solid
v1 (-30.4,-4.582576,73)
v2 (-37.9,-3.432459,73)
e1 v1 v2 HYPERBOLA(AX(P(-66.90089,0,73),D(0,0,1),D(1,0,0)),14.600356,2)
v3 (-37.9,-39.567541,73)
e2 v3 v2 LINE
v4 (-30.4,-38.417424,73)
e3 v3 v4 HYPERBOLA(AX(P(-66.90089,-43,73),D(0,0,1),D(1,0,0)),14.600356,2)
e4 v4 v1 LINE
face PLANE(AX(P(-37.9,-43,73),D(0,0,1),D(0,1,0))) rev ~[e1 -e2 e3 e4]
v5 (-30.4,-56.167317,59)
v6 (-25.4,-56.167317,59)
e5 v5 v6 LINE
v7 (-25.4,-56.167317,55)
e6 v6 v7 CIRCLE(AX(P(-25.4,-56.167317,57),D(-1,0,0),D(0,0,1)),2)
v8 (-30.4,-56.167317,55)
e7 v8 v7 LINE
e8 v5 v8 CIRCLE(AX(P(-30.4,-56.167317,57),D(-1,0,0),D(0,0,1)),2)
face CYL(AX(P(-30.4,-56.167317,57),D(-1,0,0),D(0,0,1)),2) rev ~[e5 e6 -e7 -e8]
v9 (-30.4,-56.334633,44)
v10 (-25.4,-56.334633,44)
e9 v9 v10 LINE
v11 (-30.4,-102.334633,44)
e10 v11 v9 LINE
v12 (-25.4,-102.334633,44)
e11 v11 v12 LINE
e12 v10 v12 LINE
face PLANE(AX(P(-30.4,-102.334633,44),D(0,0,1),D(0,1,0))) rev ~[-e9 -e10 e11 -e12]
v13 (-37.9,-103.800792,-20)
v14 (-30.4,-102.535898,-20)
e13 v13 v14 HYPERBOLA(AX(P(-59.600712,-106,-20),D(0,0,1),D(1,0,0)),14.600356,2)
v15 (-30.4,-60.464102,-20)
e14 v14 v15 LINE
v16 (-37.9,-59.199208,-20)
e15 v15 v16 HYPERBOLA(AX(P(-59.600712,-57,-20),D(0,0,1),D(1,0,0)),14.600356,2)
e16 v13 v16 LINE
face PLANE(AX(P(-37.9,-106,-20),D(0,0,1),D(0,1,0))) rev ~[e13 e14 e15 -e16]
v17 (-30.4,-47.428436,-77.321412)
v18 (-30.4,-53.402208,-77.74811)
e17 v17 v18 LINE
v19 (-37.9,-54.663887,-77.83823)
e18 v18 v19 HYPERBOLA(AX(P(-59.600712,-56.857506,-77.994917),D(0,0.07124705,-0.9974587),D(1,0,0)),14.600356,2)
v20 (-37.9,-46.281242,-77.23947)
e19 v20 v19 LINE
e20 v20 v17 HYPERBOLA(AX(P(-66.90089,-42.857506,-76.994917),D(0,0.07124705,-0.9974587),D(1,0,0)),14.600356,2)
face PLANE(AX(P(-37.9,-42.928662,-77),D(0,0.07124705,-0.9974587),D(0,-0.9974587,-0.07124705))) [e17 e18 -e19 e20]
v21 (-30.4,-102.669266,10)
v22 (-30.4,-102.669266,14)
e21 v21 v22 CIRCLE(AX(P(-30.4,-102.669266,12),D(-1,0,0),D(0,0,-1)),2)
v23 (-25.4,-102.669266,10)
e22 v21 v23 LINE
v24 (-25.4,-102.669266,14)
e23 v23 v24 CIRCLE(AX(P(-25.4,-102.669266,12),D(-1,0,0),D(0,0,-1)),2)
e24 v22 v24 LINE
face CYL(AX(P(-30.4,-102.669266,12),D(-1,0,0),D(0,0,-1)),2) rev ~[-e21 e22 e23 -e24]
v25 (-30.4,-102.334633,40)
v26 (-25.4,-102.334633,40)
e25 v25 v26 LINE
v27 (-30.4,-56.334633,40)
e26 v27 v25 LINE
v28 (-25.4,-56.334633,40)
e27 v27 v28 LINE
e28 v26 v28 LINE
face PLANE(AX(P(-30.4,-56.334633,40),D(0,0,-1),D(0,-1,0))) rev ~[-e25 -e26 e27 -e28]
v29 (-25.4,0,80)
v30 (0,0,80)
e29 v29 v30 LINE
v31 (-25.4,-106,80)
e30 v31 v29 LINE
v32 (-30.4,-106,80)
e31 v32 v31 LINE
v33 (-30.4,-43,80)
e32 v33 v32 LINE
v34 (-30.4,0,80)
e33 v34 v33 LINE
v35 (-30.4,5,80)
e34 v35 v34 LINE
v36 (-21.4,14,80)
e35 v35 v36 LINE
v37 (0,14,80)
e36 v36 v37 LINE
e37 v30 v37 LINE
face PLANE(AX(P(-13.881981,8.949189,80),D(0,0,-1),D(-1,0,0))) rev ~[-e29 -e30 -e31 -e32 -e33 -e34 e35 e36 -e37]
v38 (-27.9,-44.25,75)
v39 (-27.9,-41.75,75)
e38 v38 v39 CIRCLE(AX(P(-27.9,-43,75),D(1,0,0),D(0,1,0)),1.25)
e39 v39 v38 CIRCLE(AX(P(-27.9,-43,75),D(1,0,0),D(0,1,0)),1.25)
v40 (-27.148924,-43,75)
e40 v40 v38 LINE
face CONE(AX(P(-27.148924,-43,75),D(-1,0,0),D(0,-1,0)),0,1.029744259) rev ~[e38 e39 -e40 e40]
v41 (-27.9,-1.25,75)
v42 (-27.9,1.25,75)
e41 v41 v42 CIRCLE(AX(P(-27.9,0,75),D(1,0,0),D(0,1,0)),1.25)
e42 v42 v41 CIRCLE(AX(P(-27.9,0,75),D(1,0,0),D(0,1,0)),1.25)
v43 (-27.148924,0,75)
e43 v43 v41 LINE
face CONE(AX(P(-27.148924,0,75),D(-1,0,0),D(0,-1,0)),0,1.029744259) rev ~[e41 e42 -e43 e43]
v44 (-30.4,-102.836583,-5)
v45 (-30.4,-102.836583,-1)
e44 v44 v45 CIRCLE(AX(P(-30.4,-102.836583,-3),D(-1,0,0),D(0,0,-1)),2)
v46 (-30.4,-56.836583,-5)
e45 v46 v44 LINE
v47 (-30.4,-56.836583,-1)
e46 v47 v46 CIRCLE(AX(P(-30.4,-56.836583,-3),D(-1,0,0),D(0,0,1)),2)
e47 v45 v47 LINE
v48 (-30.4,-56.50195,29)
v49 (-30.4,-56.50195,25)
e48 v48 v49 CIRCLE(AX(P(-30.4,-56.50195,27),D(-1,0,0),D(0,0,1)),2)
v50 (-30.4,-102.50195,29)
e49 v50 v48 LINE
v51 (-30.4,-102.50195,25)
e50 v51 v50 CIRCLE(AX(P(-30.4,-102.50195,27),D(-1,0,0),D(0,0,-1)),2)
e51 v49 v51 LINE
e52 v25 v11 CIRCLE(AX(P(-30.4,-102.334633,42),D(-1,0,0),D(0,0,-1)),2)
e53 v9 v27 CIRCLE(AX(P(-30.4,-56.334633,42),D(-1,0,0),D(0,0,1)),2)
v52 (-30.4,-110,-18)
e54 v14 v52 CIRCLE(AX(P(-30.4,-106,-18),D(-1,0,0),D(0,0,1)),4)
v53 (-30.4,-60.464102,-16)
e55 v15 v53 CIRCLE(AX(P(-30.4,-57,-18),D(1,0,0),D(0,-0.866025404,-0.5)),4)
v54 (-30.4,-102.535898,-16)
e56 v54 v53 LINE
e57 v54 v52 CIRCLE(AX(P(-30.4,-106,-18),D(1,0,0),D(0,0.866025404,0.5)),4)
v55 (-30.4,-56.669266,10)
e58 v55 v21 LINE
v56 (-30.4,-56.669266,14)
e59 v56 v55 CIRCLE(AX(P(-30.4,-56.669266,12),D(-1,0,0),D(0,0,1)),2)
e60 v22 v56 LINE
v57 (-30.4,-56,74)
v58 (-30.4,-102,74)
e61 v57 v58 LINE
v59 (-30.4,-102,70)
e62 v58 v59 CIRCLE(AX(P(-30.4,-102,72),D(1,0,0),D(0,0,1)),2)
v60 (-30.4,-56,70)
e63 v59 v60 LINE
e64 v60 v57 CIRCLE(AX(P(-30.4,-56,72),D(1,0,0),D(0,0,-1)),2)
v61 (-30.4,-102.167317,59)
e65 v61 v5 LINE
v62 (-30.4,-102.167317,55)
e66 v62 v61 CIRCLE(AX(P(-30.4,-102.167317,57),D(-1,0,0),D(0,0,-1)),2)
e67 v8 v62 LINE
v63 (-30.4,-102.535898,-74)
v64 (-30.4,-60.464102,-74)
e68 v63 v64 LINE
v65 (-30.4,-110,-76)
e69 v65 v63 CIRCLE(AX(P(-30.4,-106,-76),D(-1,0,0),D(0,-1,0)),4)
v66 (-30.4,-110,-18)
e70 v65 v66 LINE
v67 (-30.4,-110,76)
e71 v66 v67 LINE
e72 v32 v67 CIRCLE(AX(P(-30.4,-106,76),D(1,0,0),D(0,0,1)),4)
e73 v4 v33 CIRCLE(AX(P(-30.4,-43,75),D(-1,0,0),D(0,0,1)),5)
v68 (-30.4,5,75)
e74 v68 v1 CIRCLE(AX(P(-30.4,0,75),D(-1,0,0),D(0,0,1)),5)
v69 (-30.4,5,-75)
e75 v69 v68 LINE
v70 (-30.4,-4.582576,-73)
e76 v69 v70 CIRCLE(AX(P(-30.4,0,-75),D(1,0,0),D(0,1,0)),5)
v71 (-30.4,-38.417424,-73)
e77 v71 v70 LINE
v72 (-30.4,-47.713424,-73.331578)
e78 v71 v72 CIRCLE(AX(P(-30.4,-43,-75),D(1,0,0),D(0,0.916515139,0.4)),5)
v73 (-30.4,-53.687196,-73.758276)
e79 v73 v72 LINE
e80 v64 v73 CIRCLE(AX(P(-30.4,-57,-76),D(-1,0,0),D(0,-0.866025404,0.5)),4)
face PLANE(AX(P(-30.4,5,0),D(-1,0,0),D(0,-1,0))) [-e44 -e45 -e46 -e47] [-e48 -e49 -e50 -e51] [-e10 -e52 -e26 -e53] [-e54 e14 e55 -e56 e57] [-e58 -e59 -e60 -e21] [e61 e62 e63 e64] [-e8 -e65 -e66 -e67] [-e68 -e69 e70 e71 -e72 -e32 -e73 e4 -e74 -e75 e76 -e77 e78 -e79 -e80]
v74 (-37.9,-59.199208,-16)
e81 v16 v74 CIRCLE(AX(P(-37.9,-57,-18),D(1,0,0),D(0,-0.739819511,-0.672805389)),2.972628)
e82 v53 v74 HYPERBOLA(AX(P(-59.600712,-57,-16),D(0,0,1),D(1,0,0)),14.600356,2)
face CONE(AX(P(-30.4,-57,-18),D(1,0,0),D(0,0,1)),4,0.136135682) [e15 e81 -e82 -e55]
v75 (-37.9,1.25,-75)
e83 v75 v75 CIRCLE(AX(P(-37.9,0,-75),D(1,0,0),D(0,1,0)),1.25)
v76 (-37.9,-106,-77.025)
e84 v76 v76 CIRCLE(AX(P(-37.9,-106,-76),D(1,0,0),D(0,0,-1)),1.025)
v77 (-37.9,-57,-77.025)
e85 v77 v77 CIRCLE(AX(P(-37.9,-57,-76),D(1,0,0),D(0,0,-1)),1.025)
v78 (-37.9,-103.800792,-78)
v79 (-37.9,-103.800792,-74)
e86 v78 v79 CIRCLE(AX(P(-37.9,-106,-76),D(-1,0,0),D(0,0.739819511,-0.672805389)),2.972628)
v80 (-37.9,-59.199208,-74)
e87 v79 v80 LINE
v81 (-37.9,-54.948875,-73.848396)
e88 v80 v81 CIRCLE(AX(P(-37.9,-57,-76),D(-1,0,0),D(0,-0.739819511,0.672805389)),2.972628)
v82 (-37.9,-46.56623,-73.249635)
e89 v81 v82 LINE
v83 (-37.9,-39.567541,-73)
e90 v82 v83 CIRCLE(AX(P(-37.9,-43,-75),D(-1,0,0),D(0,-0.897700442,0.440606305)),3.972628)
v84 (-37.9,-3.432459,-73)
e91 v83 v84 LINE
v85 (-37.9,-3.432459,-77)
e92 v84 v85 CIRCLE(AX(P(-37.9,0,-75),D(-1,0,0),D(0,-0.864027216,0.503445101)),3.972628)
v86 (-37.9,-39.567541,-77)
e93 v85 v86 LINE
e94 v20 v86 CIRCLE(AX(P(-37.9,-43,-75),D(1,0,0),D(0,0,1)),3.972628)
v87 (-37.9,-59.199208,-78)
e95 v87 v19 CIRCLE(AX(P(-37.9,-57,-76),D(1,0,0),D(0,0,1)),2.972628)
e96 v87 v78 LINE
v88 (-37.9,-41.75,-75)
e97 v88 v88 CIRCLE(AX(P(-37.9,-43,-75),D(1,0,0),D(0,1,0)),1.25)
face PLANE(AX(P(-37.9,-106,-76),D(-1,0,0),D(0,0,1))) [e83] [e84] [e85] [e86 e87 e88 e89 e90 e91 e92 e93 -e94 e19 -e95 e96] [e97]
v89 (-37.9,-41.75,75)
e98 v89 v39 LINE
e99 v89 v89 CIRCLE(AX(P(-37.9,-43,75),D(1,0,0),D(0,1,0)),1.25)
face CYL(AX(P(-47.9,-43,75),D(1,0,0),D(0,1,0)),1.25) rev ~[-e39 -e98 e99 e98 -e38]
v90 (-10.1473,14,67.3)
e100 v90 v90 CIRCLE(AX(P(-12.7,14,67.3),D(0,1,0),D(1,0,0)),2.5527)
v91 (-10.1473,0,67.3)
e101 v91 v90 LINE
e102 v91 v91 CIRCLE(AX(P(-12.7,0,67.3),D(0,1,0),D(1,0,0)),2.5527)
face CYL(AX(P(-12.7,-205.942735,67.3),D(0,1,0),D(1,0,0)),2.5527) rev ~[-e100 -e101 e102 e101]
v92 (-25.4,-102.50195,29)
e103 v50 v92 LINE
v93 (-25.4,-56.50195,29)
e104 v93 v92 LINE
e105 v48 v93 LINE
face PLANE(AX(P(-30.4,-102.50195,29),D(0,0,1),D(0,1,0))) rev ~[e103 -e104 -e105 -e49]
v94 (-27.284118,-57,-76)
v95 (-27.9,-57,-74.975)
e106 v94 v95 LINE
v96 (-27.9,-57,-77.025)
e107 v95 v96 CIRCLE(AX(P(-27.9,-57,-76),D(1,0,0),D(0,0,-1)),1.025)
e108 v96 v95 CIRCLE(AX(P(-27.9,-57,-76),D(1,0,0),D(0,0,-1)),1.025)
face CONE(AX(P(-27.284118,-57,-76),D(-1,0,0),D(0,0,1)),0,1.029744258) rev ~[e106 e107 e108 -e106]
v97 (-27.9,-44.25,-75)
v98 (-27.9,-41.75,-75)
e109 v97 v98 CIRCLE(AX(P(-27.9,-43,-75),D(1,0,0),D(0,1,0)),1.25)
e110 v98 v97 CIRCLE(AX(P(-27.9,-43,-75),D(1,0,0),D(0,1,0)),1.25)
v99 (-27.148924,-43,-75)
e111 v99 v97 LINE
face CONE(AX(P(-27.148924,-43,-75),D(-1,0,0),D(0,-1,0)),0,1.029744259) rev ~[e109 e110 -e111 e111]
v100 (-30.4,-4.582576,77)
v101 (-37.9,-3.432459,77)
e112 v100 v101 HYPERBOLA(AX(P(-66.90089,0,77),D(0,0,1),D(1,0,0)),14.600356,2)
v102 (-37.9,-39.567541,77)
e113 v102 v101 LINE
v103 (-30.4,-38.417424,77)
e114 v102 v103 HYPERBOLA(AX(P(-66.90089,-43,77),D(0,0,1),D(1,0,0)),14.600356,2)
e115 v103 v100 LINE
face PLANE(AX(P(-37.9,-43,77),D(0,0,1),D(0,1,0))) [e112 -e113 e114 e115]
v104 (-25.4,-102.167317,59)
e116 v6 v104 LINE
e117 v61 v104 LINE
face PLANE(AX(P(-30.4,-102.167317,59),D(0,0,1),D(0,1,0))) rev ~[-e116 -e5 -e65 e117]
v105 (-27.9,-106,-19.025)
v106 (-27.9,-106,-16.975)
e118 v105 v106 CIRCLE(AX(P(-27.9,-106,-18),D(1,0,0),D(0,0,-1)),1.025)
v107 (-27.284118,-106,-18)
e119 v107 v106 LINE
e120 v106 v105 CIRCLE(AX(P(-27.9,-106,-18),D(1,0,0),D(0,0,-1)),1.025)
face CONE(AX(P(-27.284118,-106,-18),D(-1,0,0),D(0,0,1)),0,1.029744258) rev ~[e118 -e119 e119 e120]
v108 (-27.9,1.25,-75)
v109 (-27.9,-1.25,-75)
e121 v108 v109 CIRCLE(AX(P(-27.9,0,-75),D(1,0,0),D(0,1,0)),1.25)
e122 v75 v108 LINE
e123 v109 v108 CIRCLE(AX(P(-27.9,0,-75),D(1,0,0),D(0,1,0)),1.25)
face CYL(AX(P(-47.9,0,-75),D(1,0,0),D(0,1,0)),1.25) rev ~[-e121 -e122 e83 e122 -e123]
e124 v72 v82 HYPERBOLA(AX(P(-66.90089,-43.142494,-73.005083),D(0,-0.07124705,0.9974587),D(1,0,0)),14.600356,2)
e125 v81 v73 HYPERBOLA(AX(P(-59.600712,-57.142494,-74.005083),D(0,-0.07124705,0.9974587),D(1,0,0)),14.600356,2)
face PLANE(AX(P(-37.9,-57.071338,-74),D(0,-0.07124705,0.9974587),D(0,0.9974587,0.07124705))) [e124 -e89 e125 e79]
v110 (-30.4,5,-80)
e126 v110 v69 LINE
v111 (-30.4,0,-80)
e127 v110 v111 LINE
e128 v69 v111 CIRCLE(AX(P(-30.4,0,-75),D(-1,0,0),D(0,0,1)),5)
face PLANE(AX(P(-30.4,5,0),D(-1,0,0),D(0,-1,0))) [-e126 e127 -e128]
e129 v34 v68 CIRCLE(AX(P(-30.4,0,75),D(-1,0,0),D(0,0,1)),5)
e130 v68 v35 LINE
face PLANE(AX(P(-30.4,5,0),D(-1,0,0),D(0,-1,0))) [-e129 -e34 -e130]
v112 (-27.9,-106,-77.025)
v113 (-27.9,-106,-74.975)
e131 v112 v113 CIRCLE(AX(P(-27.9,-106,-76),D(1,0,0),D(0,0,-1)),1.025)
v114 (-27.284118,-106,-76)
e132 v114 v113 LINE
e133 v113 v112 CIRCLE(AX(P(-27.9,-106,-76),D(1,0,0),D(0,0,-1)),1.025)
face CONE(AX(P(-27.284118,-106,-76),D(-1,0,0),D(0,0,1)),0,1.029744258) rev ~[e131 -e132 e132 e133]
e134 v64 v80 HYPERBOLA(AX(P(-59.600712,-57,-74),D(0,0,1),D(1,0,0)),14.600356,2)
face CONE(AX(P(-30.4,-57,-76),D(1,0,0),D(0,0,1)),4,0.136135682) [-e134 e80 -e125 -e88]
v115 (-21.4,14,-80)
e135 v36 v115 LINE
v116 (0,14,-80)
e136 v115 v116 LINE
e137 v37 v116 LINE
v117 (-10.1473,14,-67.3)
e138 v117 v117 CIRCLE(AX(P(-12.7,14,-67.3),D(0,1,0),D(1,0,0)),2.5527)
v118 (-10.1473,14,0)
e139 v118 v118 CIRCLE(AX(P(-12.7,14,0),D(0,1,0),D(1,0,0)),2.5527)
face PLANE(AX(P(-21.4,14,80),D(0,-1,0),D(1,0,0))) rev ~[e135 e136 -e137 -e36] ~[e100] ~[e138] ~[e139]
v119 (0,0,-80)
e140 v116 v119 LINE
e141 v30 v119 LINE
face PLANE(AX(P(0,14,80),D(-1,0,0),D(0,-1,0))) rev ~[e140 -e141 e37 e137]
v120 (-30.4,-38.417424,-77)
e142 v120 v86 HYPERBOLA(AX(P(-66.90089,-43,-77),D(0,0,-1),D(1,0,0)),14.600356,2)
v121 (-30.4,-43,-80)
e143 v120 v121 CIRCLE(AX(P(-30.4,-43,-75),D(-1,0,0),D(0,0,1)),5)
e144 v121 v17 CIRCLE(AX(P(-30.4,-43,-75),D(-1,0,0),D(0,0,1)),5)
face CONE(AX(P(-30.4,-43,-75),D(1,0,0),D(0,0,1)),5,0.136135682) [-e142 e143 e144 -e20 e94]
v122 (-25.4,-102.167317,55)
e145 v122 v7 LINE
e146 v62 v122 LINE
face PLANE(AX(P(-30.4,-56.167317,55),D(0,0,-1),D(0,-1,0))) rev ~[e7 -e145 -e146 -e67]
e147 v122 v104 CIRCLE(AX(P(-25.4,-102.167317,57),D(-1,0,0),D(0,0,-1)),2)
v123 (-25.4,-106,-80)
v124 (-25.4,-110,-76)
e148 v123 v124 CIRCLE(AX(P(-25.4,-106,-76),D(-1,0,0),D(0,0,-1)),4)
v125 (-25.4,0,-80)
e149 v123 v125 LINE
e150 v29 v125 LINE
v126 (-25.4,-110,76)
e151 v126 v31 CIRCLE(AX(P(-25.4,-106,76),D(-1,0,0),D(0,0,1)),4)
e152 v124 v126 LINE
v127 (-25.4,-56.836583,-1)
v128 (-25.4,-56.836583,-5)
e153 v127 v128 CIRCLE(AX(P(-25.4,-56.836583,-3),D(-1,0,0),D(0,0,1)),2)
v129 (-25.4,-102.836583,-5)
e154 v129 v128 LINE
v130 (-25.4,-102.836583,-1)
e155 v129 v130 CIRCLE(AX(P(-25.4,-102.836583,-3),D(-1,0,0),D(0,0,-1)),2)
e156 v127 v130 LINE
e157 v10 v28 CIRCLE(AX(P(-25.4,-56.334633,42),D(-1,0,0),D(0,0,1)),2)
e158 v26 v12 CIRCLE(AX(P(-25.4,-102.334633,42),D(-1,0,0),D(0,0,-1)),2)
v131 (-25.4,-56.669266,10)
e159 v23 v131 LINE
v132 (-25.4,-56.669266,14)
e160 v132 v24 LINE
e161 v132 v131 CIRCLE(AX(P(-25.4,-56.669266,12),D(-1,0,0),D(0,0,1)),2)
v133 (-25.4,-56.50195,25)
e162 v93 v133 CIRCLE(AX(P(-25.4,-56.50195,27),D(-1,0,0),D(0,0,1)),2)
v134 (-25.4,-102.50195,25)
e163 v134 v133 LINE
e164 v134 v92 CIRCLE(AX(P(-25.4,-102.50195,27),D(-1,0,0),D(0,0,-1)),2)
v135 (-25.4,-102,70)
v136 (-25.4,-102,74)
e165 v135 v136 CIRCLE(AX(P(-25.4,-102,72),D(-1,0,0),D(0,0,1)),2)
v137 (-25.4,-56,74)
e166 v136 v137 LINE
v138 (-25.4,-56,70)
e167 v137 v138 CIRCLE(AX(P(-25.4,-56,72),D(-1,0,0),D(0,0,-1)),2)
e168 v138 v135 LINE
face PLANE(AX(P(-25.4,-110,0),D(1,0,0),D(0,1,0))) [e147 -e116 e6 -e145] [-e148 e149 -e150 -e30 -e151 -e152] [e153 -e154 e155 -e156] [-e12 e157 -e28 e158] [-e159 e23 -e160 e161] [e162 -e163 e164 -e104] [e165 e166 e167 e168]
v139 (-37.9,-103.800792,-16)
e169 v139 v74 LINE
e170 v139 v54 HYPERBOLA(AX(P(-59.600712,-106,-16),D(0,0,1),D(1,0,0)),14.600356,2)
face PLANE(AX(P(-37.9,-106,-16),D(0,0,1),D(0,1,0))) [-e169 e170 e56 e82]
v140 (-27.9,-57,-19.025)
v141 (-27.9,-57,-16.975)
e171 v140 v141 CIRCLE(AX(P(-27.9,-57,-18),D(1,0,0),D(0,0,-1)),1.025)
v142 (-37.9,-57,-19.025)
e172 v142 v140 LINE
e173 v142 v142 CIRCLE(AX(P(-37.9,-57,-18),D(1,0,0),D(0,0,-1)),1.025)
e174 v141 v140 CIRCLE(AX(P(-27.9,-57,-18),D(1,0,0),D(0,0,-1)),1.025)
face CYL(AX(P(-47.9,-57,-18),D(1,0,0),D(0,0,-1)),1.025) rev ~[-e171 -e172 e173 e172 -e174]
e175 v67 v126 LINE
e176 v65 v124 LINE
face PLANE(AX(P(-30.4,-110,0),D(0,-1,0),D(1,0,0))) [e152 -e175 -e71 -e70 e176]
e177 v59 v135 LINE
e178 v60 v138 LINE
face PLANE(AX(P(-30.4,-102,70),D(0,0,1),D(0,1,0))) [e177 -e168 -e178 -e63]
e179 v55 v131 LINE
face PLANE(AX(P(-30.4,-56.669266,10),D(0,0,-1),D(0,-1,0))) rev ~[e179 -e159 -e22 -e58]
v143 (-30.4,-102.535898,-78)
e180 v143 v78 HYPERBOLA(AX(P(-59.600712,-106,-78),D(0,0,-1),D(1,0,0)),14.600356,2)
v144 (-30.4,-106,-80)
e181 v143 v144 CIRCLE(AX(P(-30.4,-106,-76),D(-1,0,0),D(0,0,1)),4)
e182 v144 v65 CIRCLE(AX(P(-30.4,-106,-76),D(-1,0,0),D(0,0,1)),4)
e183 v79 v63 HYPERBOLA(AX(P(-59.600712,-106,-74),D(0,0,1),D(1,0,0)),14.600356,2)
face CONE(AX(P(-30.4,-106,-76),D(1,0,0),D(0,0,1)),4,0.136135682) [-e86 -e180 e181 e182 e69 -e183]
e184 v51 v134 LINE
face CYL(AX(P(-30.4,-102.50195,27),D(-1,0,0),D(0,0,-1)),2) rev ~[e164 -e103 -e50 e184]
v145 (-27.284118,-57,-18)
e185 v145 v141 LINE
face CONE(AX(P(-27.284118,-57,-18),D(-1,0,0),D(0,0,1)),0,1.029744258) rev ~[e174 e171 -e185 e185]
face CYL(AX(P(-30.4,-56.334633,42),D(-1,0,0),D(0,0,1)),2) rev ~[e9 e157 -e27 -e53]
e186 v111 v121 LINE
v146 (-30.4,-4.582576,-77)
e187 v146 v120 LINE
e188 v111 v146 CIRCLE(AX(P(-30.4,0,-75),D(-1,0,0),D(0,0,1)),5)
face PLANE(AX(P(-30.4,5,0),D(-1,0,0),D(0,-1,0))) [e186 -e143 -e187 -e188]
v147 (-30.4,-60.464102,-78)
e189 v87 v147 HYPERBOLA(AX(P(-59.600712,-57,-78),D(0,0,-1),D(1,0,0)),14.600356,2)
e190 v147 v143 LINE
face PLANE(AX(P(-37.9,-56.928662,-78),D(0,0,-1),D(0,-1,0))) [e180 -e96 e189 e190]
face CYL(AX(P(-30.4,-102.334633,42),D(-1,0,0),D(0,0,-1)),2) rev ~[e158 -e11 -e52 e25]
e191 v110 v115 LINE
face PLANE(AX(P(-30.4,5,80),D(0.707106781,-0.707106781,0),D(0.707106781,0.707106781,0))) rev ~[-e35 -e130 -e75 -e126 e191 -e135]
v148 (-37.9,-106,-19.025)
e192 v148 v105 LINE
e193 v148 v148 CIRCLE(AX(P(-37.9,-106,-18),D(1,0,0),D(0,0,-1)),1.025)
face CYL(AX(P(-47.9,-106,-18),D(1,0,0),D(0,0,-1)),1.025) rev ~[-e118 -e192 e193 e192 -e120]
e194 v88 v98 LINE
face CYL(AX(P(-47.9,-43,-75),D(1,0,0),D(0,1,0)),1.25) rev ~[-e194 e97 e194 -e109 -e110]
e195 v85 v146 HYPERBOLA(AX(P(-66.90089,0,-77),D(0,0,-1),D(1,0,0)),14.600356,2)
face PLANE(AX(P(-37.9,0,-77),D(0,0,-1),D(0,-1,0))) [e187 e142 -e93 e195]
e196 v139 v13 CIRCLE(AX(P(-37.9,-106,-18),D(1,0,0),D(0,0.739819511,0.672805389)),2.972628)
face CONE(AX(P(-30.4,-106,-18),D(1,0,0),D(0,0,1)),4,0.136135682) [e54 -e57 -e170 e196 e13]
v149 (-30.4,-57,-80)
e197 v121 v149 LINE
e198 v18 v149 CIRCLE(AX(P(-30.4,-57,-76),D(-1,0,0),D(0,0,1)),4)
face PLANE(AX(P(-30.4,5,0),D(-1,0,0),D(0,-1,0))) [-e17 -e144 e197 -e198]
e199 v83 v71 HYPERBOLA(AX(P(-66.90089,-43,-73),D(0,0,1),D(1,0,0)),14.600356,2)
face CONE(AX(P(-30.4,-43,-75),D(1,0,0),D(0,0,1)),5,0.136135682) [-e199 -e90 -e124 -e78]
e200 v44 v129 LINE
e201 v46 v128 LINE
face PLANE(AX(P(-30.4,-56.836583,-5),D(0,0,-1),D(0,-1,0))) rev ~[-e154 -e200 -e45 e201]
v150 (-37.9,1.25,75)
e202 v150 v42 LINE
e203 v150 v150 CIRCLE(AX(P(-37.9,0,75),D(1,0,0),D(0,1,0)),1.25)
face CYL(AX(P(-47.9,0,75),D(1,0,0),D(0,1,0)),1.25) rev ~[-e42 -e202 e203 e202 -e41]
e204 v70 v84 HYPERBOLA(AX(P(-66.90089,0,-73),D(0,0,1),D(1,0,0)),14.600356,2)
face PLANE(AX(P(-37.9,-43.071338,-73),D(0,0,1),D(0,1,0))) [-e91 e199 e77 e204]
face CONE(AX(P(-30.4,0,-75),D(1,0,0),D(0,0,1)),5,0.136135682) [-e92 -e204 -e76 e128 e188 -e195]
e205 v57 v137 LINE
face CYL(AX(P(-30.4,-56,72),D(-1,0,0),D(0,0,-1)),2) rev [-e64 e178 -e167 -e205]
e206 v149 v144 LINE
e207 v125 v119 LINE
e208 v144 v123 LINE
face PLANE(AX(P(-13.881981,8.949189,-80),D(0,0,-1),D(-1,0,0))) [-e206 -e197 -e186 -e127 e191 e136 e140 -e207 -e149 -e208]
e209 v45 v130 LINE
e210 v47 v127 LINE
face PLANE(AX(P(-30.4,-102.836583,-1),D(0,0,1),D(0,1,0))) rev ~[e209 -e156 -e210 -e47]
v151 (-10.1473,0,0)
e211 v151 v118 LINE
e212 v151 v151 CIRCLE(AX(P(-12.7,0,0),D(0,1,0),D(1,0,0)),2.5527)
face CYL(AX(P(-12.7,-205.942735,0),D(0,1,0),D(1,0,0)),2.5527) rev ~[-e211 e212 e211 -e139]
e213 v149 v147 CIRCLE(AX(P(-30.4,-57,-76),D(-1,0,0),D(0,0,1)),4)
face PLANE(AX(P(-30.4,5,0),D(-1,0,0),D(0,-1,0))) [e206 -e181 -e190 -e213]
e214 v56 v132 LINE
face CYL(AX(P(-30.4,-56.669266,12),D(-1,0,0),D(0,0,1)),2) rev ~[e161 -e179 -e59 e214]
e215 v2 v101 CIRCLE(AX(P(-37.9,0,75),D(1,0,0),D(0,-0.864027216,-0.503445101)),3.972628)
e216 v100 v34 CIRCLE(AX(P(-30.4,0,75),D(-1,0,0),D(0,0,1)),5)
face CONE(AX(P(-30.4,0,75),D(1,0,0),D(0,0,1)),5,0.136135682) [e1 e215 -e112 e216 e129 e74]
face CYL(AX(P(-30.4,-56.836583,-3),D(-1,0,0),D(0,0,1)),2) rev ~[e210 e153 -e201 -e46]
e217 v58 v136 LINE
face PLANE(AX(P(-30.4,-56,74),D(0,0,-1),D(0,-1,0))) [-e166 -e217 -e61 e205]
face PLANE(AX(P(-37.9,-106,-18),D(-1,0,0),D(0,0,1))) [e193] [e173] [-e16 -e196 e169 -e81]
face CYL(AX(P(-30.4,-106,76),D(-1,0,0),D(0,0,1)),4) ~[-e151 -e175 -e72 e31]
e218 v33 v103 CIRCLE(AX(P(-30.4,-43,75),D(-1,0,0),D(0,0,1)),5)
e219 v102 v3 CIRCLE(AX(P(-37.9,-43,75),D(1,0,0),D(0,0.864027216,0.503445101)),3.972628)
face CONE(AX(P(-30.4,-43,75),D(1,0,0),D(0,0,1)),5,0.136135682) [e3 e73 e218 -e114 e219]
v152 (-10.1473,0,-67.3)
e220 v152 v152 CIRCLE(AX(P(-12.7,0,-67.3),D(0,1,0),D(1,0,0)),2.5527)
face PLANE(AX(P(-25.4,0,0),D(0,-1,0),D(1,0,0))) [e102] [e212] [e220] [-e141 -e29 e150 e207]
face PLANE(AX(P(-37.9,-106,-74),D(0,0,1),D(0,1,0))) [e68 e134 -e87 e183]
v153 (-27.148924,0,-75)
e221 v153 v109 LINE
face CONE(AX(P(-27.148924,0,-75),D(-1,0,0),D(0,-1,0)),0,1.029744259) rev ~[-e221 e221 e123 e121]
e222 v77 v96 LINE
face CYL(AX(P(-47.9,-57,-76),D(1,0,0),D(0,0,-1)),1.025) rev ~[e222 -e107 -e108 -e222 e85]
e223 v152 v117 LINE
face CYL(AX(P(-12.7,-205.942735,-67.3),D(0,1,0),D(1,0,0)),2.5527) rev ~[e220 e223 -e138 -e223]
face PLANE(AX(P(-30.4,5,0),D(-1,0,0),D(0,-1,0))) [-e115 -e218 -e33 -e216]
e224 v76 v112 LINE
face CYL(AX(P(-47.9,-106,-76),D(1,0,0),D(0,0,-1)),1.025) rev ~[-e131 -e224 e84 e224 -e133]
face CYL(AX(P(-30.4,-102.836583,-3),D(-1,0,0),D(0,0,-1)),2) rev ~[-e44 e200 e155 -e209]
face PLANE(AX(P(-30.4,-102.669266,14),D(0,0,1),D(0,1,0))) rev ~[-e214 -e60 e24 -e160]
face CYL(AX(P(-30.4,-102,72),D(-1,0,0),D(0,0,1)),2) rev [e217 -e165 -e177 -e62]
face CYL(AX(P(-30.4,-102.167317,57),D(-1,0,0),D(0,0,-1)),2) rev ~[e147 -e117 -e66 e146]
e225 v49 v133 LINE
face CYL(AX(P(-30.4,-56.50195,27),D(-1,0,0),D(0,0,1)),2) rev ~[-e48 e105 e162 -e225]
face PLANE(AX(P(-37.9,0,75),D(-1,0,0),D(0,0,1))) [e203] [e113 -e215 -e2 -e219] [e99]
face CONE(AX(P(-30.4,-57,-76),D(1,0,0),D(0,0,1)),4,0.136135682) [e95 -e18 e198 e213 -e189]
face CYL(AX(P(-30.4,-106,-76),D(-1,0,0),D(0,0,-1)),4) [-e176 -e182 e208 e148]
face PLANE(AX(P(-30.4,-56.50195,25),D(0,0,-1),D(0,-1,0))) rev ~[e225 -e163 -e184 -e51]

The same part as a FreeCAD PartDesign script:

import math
import FreeCAD as App
import Part
import Sketcher
from FreeCAD import Vector
Q = App.Units.Quantity

doc = App.newDocument("Part")
body = doc.addObject("PartDesign::Body", "Body")

sketch1 = body.newObject("Sketcher::SketchObject", "Sketch")
sketch1.AttachmentSupport = (doc.getObject("XY_Plane"), [""])
sketch1.MapMode = "FlatFace"
sketch1.addGeometry(Part.LineSegment(Vector(0, 5, 0), Vector(-30, 5, 0)), False)
sketch1.addGeometry(Part.LineSegment(Vector(-30, 5, 0), Vector(-30, -110, 0)), False)
sketch1.addGeometry(Part.LineSegment(Vector(-30, -110, 0), Vector(-25, -110, 0)), False)
sketch1.addGeometry(Part.LineSegment(Vector(-25, -110, 0), Vector(-25, 0, 0)), False)
sketch1.addGeometry(Part.LineSegment(Vector(-25, 0, 0), Vector(0, 0, 0)), False)
sketch1.addGeometry(Part.LineSegment(Vector(0, 0, 0), Vector(0, 5, 0)), False)
sketch1.addConstraint(Sketcher.Constraint("Coincident", 0, 2, 1, 1))
sketch1.addConstraint(Sketcher.Constraint("Coincident", 1, 2, 2, 1))
sketch1.addConstraint(Sketcher.Constraint("Coincident", 2, 2, 3, 1))
sketch1.addConstraint(Sketcher.Constraint("Coincident", 3, 2, 4, 1))
sketch1.addConstraint(Sketcher.Constraint("Coincident", 4, 2, 5, 1))
sketch1.addConstraint(Sketcher.Constraint("Coincident", 5, 2, 0, 1))
sketch1.addConstraint(Sketcher.Constraint("Horizontal", 0))
sketch1.addConstraint(Sketcher.Constraint("Vertical", 1))
sketch1.addConstraint(Sketcher.Constraint("Horizontal", 2))
sketch1.addConstraint(Sketcher.Constraint("Vertical", 3))
sketch1.addConstraint(Sketcher.Constraint("Horizontal", 4))
sketch1.addConstraint(Sketcher.Constraint("Vertical", 5))
sketch1.addConstraint(Sketcher.Constraint("Coincident", 4, 2, -1, 1))
sketch1.addConstraint(Sketcher.Constraint("Equal", 2, 5))
sketch1.addConstraint(Sketcher.Constraint("DistanceX", 2, 1, 2, 2, 5.0))
sketch1.addConstraint(Sketcher.Constraint("DistanceY", 1, 2, 1, 1, 115.0))
sketch1.addConstraint(Sketcher.Constraint("DistanceX", 0, 2, 0, 1, 30.4))
pad1 = body.newObject("PartDesign::Pad", "Pad")
pad1.Profile = sketch1
pad1.Length = 160
pad1.Midplane = True

sketch2 = body.newObject("Sketcher::SketchObject", "Sketch001")
sketch2.AttachmentSupport = (doc.getObject("YZ_Plane"), [""])
sketch2.MapMode = "FlatFace"
sketch2.AttachmentOffset = App.Placement(Vector(0, 0, -30.4), App.Rotation())
sketch2.addGeometry(Part.Circle(Vector(-43, 75, 0), Vector(0, 0, 1), 5), False)
sketch2.addGeometry(Part.Circle(Vector(0, 75, 0), Vector(0, 0, 1), 5), False)
sketch2.addGeometry(Part.Circle(Vector(0, -75, 0), Vector(0, 0, 1), 5), False)
sketch2.addGeometry(Part.Circle(Vector(-43, -75, 0), Vector(0, 0, 1), 5), False)
sketch2.addGeometry(Part.Circle(Vector(-57, -76, 0), Vector(0, 0, 1), 4), False)
sketch2.addGeometry(Part.Circle(Vector(-106, -76, 0), Vector(0, 0, 1), 4), False)
sketch2.addGeometry(Part.Circle(Vector(-106, -18, 0), Vector(0, 0, 1), 4), False)
sketch2.addGeometry(Part.Circle(Vector(-57, -18, 0), Vector(0, 0, 1), 4), False)
sketch2.addConstraint(Sketcher.Constraint("Equal", 0, 1))
sketch2.addConstraint(Sketcher.Constraint("Equal", 1, 2))
sketch2.addConstraint(Sketcher.Constraint("Equal", 2, 3))
sketch2.addConstraint(Sketcher.Constraint("Equal", 4, 5))
sketch2.addConstraint(Sketcher.Constraint("Equal", 5, 6))
sketch2.addConstraint(Sketcher.Constraint("Equal", 6, 7))
sketch2.addConstraint(Sketcher.Constraint("Symmetric", 1, 3, 2, 3, -1, 1))
sketch2.addConstraint(Sketcher.Constraint("Symmetric", 0, 3, 3, 3, -1))
sketch2.addConstraint(Sketcher.Constraint("PointOnObject", 1, 3, -2))
sketch2.addConstraint(Sketcher.Constraint("Horizontal", 0, 3, 1, 3))
sketch2.addConstraint(Sketcher.Constraint("Horizontal", 4, 3, 5, 3))
sketch2.addConstraint(Sketcher.Constraint("Horizontal", 6, 3, 7, 3))
sketch2.addConstraint(Sketcher.Constraint("Vertical", 5, 3, 6, 3))
sketch2.addConstraint(Sketcher.Constraint("Vertical", 4, 3, 7, 3))
sketch2.addConstraint(Sketcher.Constraint("Diameter", 0, 10.0))
sketch2.addConstraint(Sketcher.Constraint("Diameter", 4, 8.0))
sketch2.addConstraint(Sketcher.Constraint("DistanceX", 0, 3, -1, 1, 43.0))
sketch2.addConstraint(Sketcher.Constraint("DistanceY", -1, 1, 0, 3, 75.0))
sketch2.addConstraint(Sketcher.Constraint("DistanceX", 4, 3, -1, 1, 57.0))
sketch2.addConstraint(Sketcher.Constraint("DistanceY", 4, 3, -1, 1, 76.0))
sketch2.addConstraint(Sketcher.Constraint("DistanceX", 5, 3, -1, 1, 106.0))
sketch2.addConstraint(Sketcher.Constraint("DistanceY", 6, 3, -1, 1, 18.0))
pad2 = body.newObject("PartDesign::Pad", "Pad001")
pad2.Profile = sketch2
pad2.Length = 7.5
pad2.Reversed = True
pad2.TaperAngle = -7.8

sketch3 = body.newObject("Sketcher::SketchObject", "Sketch002")
sketch3.AttachmentSupport = (doc.getObject("YZ_Plane"), [""])
sketch3.MapMode = "FlatFace"
sketch3.AttachmentOffset = App.Placement(Vector(0, 0, -30.4), App.Rotation())
sketch3.addGeometry(Part.LineSegment(Vector(-102, 74, 0), Vector(-56, 74, 0)), False)
sketch3.addGeometry(Part.ArcOfCircle(Part.Circle(Vector(-56, 72, 0), Vector(0, 0, 1), 2), math.radians(-90), math.radians(90)), False)
sketch3.addGeometry(Part.LineSegment(Vector(-56, 70, 0), Vector(-102, 70, 0)), False)
sketch3.addGeometry(Part.ArcOfCircle(Part.Circle(Vector(-102, 72, 0), Vector(0, 0, 1), 2), math.radians(90), math.radians(270)), False)
sketch3.addGeometry(Part.LineSegment(Vector(-56.2, 55, 0), Vector(-102.2, 55, 0)), False)
sketch3.addGeometry(Part.ArcOfCircle(Part.Circle(Vector(-102.2, 57, 0), Vector(0, 0, 1), 2), math.radians(90), math.radians(270)), False)
sketch3.addGeometry(Part.LineSegment(Vector(-102.2, 59, 0), Vector(-56.2, 59, 0)), False)
sketch3.addGeometry(Part.ArcOfCircle(Part.Circle(Vector(-56.2, 57, 0), Vector(0, 0, 1), 2), math.radians(-90), math.radians(90)), False)
sketch3.addGeometry(Part.LineSegment(Vector(-56.3, 40, 0), Vector(-102.3, 40, 0)), False)
sketch3.addGeometry(Part.ArcOfCircle(Part.Circle(Vector(-102.3, 42, 0), Vector(0, 0, 1), 2), math.radians(90), math.radians(270)), False)
sketch3.addGeometry(Part.LineSegment(Vector(-102.3, 44, 0), Vector(-56.3, 44, 0)), False)
sketch3.addGeometry(Part.ArcOfCircle(Part.Circle(Vector(-56.3, 42, 0), Vector(0, 0, 1), 2), math.radians(-90), math.radians(90)), False)
sketch3.addGeometry(Part.LineSegment(Vector(-56.5, 25, 0), Vector(-102.5, 25, 0)), False)
sketch3.addGeometry(Part.ArcOfCircle(Part.Circle(Vector(-102.5, 27, 0), Vector(0, 0, 1), 2), math.radians(90), math.radians(270)), False)
sketch3.addGeometry(Part.LineSegment(Vector(-102.5, 29, 0), Vector(-56.5, 29, 0)), False)
sketch3.addGeometry(Part.ArcOfCircle(Part.Circle(Vector(-56.5, 27, 0), Vector(0, 0, 1), 2), math.radians(-90), math.radians(90)), False)
sketch3.addGeometry(Part.LineSegment(Vector(-56.7, 10, 0), Vector(-102.7, 10, 0)), False)
sketch3.addGeometry(Part.ArcOfCircle(Part.Circle(Vector(-102.7, 12, 0), Vector(0, 0, 1), 2), math.radians(90), math.radians(270)), False)
sketch3.addGeometry(Part.LineSegment(Vector(-102.7, 14, 0), Vector(-56.7, 14, 0)), False)
sketch3.addGeometry(Part.ArcOfCircle(Part.Circle(Vector(-56.7, 12, 0), Vector(0, 0, 1), 2), math.radians(-90), math.radians(90)), False)
sketch3.addGeometry(Part.LineSegment(Vector(-56.8, -5, 0), Vector(-102.8, -5, 0)), False)
sketch3.addGeometry(Part.ArcOfCircle(Part.Circle(Vector(-102.8, -3, 0), Vector(0, 0, 1), 2), math.radians(90), math.radians(270)), False)
sketch3.addGeometry(Part.LineSegment(Vector(-102.8, -1, 0), Vector(-56.8, -1, 0)), False)
sketch3.addGeometry(Part.ArcOfCircle(Part.Circle(Vector(-56.8, -3, 0), Vector(0, 0, 1), 2), math.radians(-90), math.radians(90)), False)
sketch3.addConstraint(Sketcher.Constraint("Tangent", 0, 2, 1, 2))
sketch3.addConstraint(Sketcher.Constraint("Tangent", 1, 1, 2, 1))
sketch3.addConstraint(Sketcher.Constraint("Tangent", 2, 2, 3, 2))
sketch3.addConstraint(Sketcher.Constraint("Tangent", 3, 1, 0, 1))
sketch3.addConstraint(Sketcher.Constraint("Tangent", 4, 2, 5, 2))
sketch3.addConstraint(Sketcher.Constraint("Tangent", 5, 1, 6, 1))
sketch3.addConstraint(Sketcher.Constraint("Tangent", 6, 2, 7, 2))
sketch3.addConstraint(Sketcher.Constraint("Tangent", 7, 1, 4, 1))
sketch3.addConstraint(Sketcher.Constraint("Tangent", 8, 2, 9, 2))
sketch3.addConstraint(Sketcher.Constraint("Tangent", 9, 1, 10, 1))
sketch3.addConstraint(Sketcher.Constraint("Tangent", 10, 2, 11, 2))
sketch3.addConstraint(Sketcher.Constraint("Tangent", 11, 1, 8, 1))
sketch3.addConstraint(Sketcher.Constraint("Tangent", 12, 2, 13, 2))
sketch3.addConstraint(Sketcher.Constraint("Tangent", 13, 1, 14, 1))
sketch3.addConstraint(Sketcher.Constraint("Tangent", 14, 2, 15, 2))
sketch3.addConstraint(Sketcher.Constraint("Tangent", 15, 1, 12, 1))
sketch3.addConstraint(Sketcher.Constraint("Tangent", 16, 2, 17, 2))
sketch3.addConstraint(Sketcher.Constraint("Tangent", 17, 1, 18, 1))
sketch3.addConstraint(Sketcher.Constraint("Tangent", 18, 2, 19, 2))
sketch3.addConstraint(Sketcher.Constraint("Tangent", 19, 1, 16, 1))
sketch3.addConstraint(Sketcher.Constraint("Tangent", 20, 2, 21, 2))
sketch3.addConstraint(Sketcher.Constraint("Tangent", 21, 1, 22, 1))
sketch3.addConstraint(Sketcher.Constraint("Tangent", 22, 2, 23, 2))
sketch3.addConstraint(Sketcher.Constraint("Tangent", 23, 1, 20, 1))
sketch3.addConstraint(Sketcher.Constraint("Horizontal", 0))
sketch3.addConstraint(Sketcher.Constraint("Horizontal", 2))
sketch3.addConstraint(Sketcher.Constraint("Horizontal", 4))
sketch3.addConstraint(Sketcher.Constraint("Horizontal", 6))
sketch3.addConstraint(Sketcher.Constraint("Horizontal", 8))
sketch3.addConstraint(Sketcher.Constraint("Horizontal", 10))
sketch3.addConstraint(Sketcher.Constraint("Horizontal", 12))
sketch3.addConstraint(Sketcher.Constraint("Horizontal", 14))
sketch3.addConstraint(Sketcher.Constraint("Horizontal", 16))
sketch3.addConstraint(Sketcher.Constraint("Horizontal", 18))
sketch3.addConstraint(Sketcher.Constraint("Horizontal", 20))
sketch3.addConstraint(Sketcher.Constraint("Horizontal", 22))
sketch3.addConstraint(Sketcher.Constraint("Equal", 3, 5))
sketch3.addConstraint(Sketcher.Constraint("Equal", 7, 9))
sketch3.addConstraint(Sketcher.Constraint("Equal", 11, 13))
sketch3.addConstraint(Sketcher.Constraint("Equal", 15, 17))
sketch3.addConstraint(Sketcher.Constraint("Equal", 19, 21))
sketch3.addConstraint(Sketcher.Constraint("Equal", 2, 4))
sketch3.addConstraint(Sketcher.Constraint("Equal", 6, 8))
sketch3.addConstraint(Sketcher.Constraint("Equal", 10, 12))
sketch3.addConstraint(Sketcher.Constraint("Equal", 14, 16))
sketch3.addConstraint(Sketcher.Constraint("Equal", 18, 20))
sketch3.addConstraint(Sketcher.Constraint("Radius", 1, 2.0))
sketch3.addConstraint(Sketcher.Constraint("DistanceX", 0, 1, 0, 2, 46.0))
sketch3.addConstraint(Sketcher.Constraint("DistanceX", 1, 3, -1, 1, 56.0))
sketch3.addConstraint(Sketcher.Constraint("DistanceY", -1, 1, 1, 3, 72.0))
sketch3.addConstraint(Sketcher.Constraint("DistanceY", -1, 1, 5, 3, 57.0))
sketch3.addConstraint(Sketcher.Constraint("DistanceY", -1, 1, 9, 3, 42.0))
sketch3.addConstraint(Sketcher.Constraint("DistanceY", -1, 1, 13, 3, 27.0))
sketch3.addConstraint(Sketcher.Constraint("DistanceY", -1, 1, 17, 3, 12.0))
sketch3.addConstraint(Sketcher.Constraint("DistanceY", 21, 3, -1, 1, 3.0))
sketch3.addConstraint(Sketcher.Constraint("DistanceX", 13, 3, -1, 1, 102.50195))
sketch3.addConstraint(Sketcher.Constraint("DistanceX", 17, 3, 5, 3, 0.50195))
sketch3.addConstraint(Sketcher.Constraint("DistanceX", 21, 3, 9, 3, 0.50195))
sketch3.addConstraint(Sketcher.Constraint("DistanceX", 5, 3, -1, 1, 102.167317))
sketch3.addConstraint(Sketcher.Constraint("DistanceX", 9, 3, -1, 1, 102.334633))
pocket1 = body.newObject("PartDesign::Pocket", "Pocket")
pocket1.Profile = sketch3
pocket1.Type = "ThroughAll"
pocket1.Reversed = True

sketch4 = body.newObject("Sketcher::SketchObject", "Sketch003")
sketch4.AttachmentSupport = (doc.getObject("YZ_Plane"), [""])
sketch4.MapMode = "FlatFace"
sketch4.AttachmentOffset = App.Placement(Vector(0, 0, -30.4), App.Rotation())
sketch4.addGeometry(Part.ArcOfCircle(Part.Circle(Vector(-106, 76, 0), Vector(0, 0, 1), 4), math.radians(90), math.radians(180)), False)
sketch4.addGeometry(Part.LineSegment(Vector(-110, 76, 0), Vector(-110, 80, 0)), False)
sketch4.addGeometry(Part.LineSegment(Vector(-110, 80, 0), Vector(-106, 80, 0)), False)
sketch4.addGeometry(Part.ArcOfCircle(Part.Circle(Vector(-106, -76, 0), Vector(0, 0, 1), 4), math.radians(180), math.radians(270)), False)
sketch4.addGeometry(Part.LineSegment(Vector(-106, -80, 0), Vector(-110, -80, 0)), False)
sketch4.addGeometry(Part.LineSegment(Vector(-110, -80, 0), Vector(-110, -76, 0)), False)
sketch4.addConstraint(Sketcher.Constraint("Tangent", 0, 2, 1, 1))
sketch4.addConstraint(Sketcher.Constraint("Coincident", 1, 2, 2, 1))
sketch4.addConstraint(Sketcher.Constraint("Tangent", 2, 2, 0, 1))
sketch4.addConstraint(Sketcher.Constraint("Tangent", 3, 2, 4, 1))
sketch4.addConstraint(Sketcher.Constraint("Coincident", 4, 2, 5, 1))
sketch4.addConstraint(Sketcher.Constraint("Tangent", 5, 2, 3, 1))
sketch4.addConstraint(Sketcher.Constraint("Vertical", 1))
sketch4.addConstraint(Sketcher.Constraint("Horizontal", 2))
sketch4.addConstraint(Sketcher.Constraint("Horizontal", 4))
sketch4.addConstraint(Sketcher.Constraint("Vertical", 5))
sketch4.addConstraint(Sketcher.Constraint("Equal", 0, 3))
sketch4.addConstraint(Sketcher.Constraint("Symmetric", 0, 3, 3, 3, -1))
sketch4.addConstraint(Sketcher.Constraint("Radius", 0, 4.0))
sketch4.addConstraint(Sketcher.Constraint("DistanceX", 0, 3, -1, 1, 106.0))
sketch4.addConstraint(Sketcher.Constraint("DistanceY", -1, 1, 0, 3, 76.0))
pocket2 = body.newObject("PartDesign::Pocket", "Pocket001")
pocket2.Profile = sketch4
pocket2.Type = "ThroughAll"
pocket2.Reversed = True

sketch5 = body.newObject("Sketcher::SketchObject", "Sketch004")
sketch5.AttachmentSupport = (doc.getObject("YZ_Plane"), [""])
sketch5.MapMode = "FlatFace"
sketch5.AttachmentOffset = App.Placement(Vector(0, 0, -37.9), App.Rotation())
sketch5.addGeometry(Part.LineSegment(Vector(-106, -74, 0), Vector(-57.1, -74, 0)), False)
sketch5.addGeometry(Part.LineSegment(Vector(-57.1, -74, 0), Vector(-43.1, -73, 0)), False)
sketch5.addGeometry(Part.LineSegment(Vector(-43.1, -73, 0), Vector(0, -73, 0)), False)
sketch5.addGeometry(Part.LineSegment(Vector(0, -73, 0), Vector(0, -77, 0)), False)
sketch5.addGeometry(Part.LineSegment(Vector(0, -77, 0), Vector(-42.9, -77, 0)), False)
sketch5.addGeometry(Part.LineSegment(Vector(-42.9, -77, 0), Vector(-56.9, -78, 0)), False)
sketch5.addGeometry(Part.LineSegment(Vector(-56.9, -78, 0), Vector(-106, -78, 0)), False)
sketch5.addGeometry(Part.LineSegment(Vector(-106, -78, 0), Vector(-106, -74, 0)), False)
sketch5.addGeometry(Part.LineSegment(Vector(0, 73, 0), Vector(-43, 73, 0)), False)
sketch5.addGeometry(Part.LineSegment(Vector(-43, 73, 0), Vector(-43, 77, 0)), False)
sketch5.addGeometry(Part.LineSegment(Vector(-43, 77, 0), Vector(0, 77, 0)), False)
sketch5.addGeometry(Part.LineSegment(Vector(0, 77, 0), Vector(0, 73, 0)), False)
sketch5.addGeometry(Part.LineSegment(Vector(-57, -20, 0), Vector(-106, -20, 0)), False)
sketch5.addGeometry(Part.LineSegment(Vector(-106, -20, 0), Vector(-106, -16, 0)), False)
sketch5.addGeometry(Part.LineSegment(Vector(-106, -16, 0), Vector(-57, -16, 0)), False)
sketch5.addGeometry(Part.LineSegment(Vector(-57, -16, 0), Vector(-57, -20, 0)), False)
sketch5.addConstraint(Sketcher.Constraint("Coincident", 0, 2, 1, 1))
sketch5.addConstraint(Sketcher.Constraint("Coincident", 1, 2, 2, 1))
sketch5.addConstraint(Sketcher.Constraint("Coincident", 2, 2, 3, 1))
sketch5.addConstraint(Sketcher.Constraint("Coincident", 3, 2, 4, 1))
sketch5.addConstraint(Sketcher.Constraint("Coincident", 4, 2, 5, 1))
sketch5.addConstraint(Sketcher.Constraint("Coincident", 5, 2, 6, 1))
sketch5.addConstraint(Sketcher.Constraint("Coincident", 6, 2, 7, 1))
sketch5.addConstraint(Sketcher.Constraint("Coincident", 7, 2, 0, 1))
sketch5.addConstraint(Sketcher.Constraint("Coincident", 8, 2, 9, 1))
sketch5.addConstraint(Sketcher.Constraint("Coincident", 9, 2, 10, 1))
sketch5.addConstraint(Sketcher.Constraint("Coincident", 10, 2, 11, 1))
sketch5.addConstraint(Sketcher.Constraint("Coincident", 11, 2, 8, 1))
sketch5.addConstraint(Sketcher.Constraint("Coincident", 12, 2, 13, 1))
sketch5.addConstraint(Sketcher.Constraint("Coincident", 13, 2, 14, 1))
sketch5.addConstraint(Sketcher.Constraint("Coincident", 14, 2, 15, 1))
sketch5.addConstraint(Sketcher.Constraint("Coincident", 15, 2, 12, 1))
sketch5.addConstraint(Sketcher.Constraint("Horizontal", 0))
sketch5.addConstraint(Sketcher.Constraint("Horizontal", 2))
sketch5.addConstraint(Sketcher.Constraint("Vertical", 3))
sketch5.addConstraint(Sketcher.Constraint("Horizontal", 4))
sketch5.addConstraint(Sketcher.Constraint("Horizontal", 6))
sketch5.addConstraint(Sketcher.Constraint("Vertical", 7))
sketch5.addConstraint(Sketcher.Constraint("Horizontal", 8))
sketch5.addConstraint(Sketcher.Constraint("Vertical", 9))
sketch5.addConstraint(Sketcher.Constraint("Horizontal", 10))
sketch5.addConstraint(Sketcher.Constraint("Vertical", 11))
sketch5.addConstraint(Sketcher.Constraint("Horizontal", 12))
sketch5.addConstraint(Sketcher.Constraint("Vertical", 13))
sketch5.addConstraint(Sketcher.Constraint("Horizontal", 14))
sketch5.addConstraint(Sketcher.Constraint("Vertical", 15))
sketch5.addConstraint(Sketcher.Constraint("Symmetric", 3, 2, 10, 2, -1, 1))
sketch5.addConstraint(Sketcher.Constraint("Symmetric", 2, 2, 11, 2, -1))
sketch5.addConstraint(Sketcher.Constraint("Parallel", 1, 5))
sketch5.addConstraint(Sketcher.Constraint("Vertical", 7, 2, 12, 2))
sketch5.addConstraint(Sketcher.Constraint("Equal", 3, 7))
sketch5.addConstraint(Sketcher.Constraint("Equal", 11, 13))
sketch5.addConstraint(Sketcher.Constraint("DistanceX", 8, 2, 8, 1, 43.0))
sketch5.addConstraint(Sketcher.Constraint("DistanceX", 12, 2, 12, 1, 49.0))
sketch5.addConstraint(Sketcher.Constraint("DistanceY", 3, 2, 3, 1, 4.0))
sketch5.addConstraint(Sketcher.Constraint("DistanceY", 0, 2, -1, 1, 74.0))
sketch5.addConstraint(Sketcher.Constraint("DistanceY", 1, 2, -1, 1, 73.0))
sketch5.addConstraint(Sketcher.Constraint("DistanceX", 6, 2, -1, 1, 106.0))
sketch5.addConstraint(Sketcher.Constraint("DistanceY", 12, 2, -1, 1, 20.0))
sketch5.addConstraint(Sketcher.Constraint("DistanceX", 0, 2, 1, 2, 14.0))
sketch5.addConstraint(Sketcher.Constraint("DistanceX", 0, 1, 0, 2, 48.928662))
sketch5.addConstraint(Sketcher.Constraint("DistanceX", 4, 2, 4, 1, 42.928662))
pad3 = body.newObject("PartDesign::Pad", "Pad002")
pad3.Profile = sketch5
pad3.Length = 7.5

sketch6 = body.newObject("Sketcher::SketchObject", "Sketch005")
sketch6.AttachmentSupport = (doc.getObject("YZ_Plane"), [""])
sketch6.MapMode = "FlatFace"
sketch6.AttachmentOffset = App.Placement(Vector(0, 0, -37.9), App.Rotation())
sketch6.addGeometry(Part.Circle(Vector(-57, -76, 0), Vector(0, 0, 1), 1), False)
sketch6.addGeometry(Part.Circle(Vector(-106, -76, 0), Vector(0, 0, 1), 1), False)
sketch6.addGeometry(Part.Circle(Vector(-106, -18, 0), Vector(0, 0, 1), 1), False)
sketch6.addGeometry(Part.Circle(Vector(-57, -18, 0), Vector(0, 0, 1), 1), False)
sketch6.addConstraint(Sketcher.Constraint("Equal", 0, 1))
sketch6.addConstraint(Sketcher.Constraint("Equal", 1, 2))
sketch6.addConstraint(Sketcher.Constraint("Equal", 2, 3))
sketch6.addConstraint(Sketcher.Constraint("Horizontal", 0, 3, 1, 3))
sketch6.addConstraint(Sketcher.Constraint("Horizontal", 2, 3, 3, 3))
sketch6.addConstraint(Sketcher.Constraint("Vertical", 1, 3, 2, 3))
sketch6.addConstraint(Sketcher.Constraint("Vertical", 0, 3, 3, 3))
sketch6.addConstraint(Sketcher.Constraint("Diameter", 0, 2.05))
sketch6.addConstraint(Sketcher.Constraint("DistanceX", 0, 3, -1, 1, 57.0))
sketch6.addConstraint(Sketcher.Constraint("DistanceY", 0, 3, -1, 1, 76.0))
sketch6.addConstraint(Sketcher.Constraint("DistanceX", 1, 3, -1, 1, 106.0))
sketch6.addConstraint(Sketcher.Constraint("DistanceY", 2, 3, -1, 1, 18.0))
doc.recompute()
hole = body.newObject("PartDesign::Hole", "Hole")
hole.Profile = sketch6
hole.ThreadType = "None"
hole.Diameter = 2.05
hole.DepthType = "Dimension"
hole.Depth = 10
hole.DrillPoint = "Angled"
hole.DrillPointAngle = 118
hole.Reversed = True

sketch7 = body.newObject("Sketcher::SketchObject", "Sketch006")
sketch7.AttachmentSupport = (doc.getObject("YZ_Plane"), [""])
sketch7.MapMode = "FlatFace"
sketch7.AttachmentOffset = App.Placement(Vector(0, 0, -37.9), App.Rotation())
sketch7.addGeometry(Part.Circle(Vector(0, -75, 0), Vector(0, 0, 1), 1.2), False)
sketch7.addGeometry(Part.Circle(Vector(-43, -75, 0), Vector(0, 0, 1), 1.2), False)
sketch7.addGeometry(Part.Circle(Vector(-43, 75, 0), Vector(0, 0, 1), 1.2), False)
sketch7.addGeometry(Part.Circle(Vector(0, 75, 0), Vector(0, 0, 1), 1.2), False)
sketch7.addConstraint(Sketcher.Constraint("Equal", 0, 1))
sketch7.addConstraint(Sketcher.Constraint("Equal", 1, 2))
sketch7.addConstraint(Sketcher.Constraint("Equal", 2, 3))
sketch7.addConstraint(Sketcher.Constraint("Symmetric", 0, 3, 3, 3, -1, 1))
sketch7.addConstraint(Sketcher.Constraint("Symmetric", 1, 3, 2, 3, -1))
sketch7.addConstraint(Sketcher.Constraint("PointOnObject", 0, 3, -2))
sketch7.addConstraint(Sketcher.Constraint("Horizontal", 0, 3, 1, 3))
sketch7.addConstraint(Sketcher.Constraint("Diameter", 0, 2.5))
sketch7.addConstraint(Sketcher.Constraint("DistanceY", 0, 3, -1, 1, 75.0))
sketch7.addConstraint(Sketcher.Constraint("DistanceX", 1, 3, -1, 1, 43.0))
doc.recompute()
hole2 = body.newObject("PartDesign::Hole", "Hole001")
hole2.Profile = sketch7
hole2.ThreadType = "None"
hole2.Diameter = 2.5
hole2.DepthType = "Dimension"
hole2.Depth = 10
hole2.DrillPoint = "Angled"
hole2.DrillPointAngle = 118
hole2.Reversed = True

sketch8 = body.newObject("Sketcher::SketchObject", "Sketch007")
sketch8.AttachmentSupport = (doc.getObject("XY_Plane"), [""])
sketch8.MapMode = "FlatFace"
sketch8.AttachmentOffset = App.Placement(Vector(0, 0, 80), App.Rotation())
sketch8.addGeometry(Part.LineSegment(Vector(-21, 14, 0), Vector(-30, 5, 0)), False)
sketch8.addGeometry(Part.LineSegment(Vector(-30, 5, 0), Vector(0, 5, 0)), False)
sketch8.addGeometry(Part.LineSegment(Vector(0, 5, 0), Vector(0, 14, 0)), False)
sketch8.addGeometry(Part.LineSegment(Vector(0, 14, 0), Vector(-21, 14, 0)), False)
sketch8.addConstraint(Sketcher.Constraint("Coincident", 0, 2, 1, 1))
sketch8.addConstraint(Sketcher.Constraint("Coincident", 1, 2, 2, 1))
sketch8.addConstraint(Sketcher.Constraint("Coincident", 2, 2, 3, 1))
sketch8.addConstraint(Sketcher.Constraint("Coincident", 3, 2, 0, 1))
sketch8.addConstraint(Sketcher.Constraint("Horizontal", 1))
sketch8.addConstraint(Sketcher.Constraint("Vertical", 2))
sketch8.addConstraint(Sketcher.Constraint("Horizontal", 3))
sketch8.addConstraint(Sketcher.Constraint("PointOnObject", 1, 2, -2))
sketch8.addConstraint(Sketcher.Constraint("DistanceY", 2, 1, 2, 2, 9.0))
sketch8.addConstraint(Sketcher.Constraint("Angle", 0, Q("-135 deg")))
sketch8.addConstraint(Sketcher.Constraint("DistanceX", 1, 1, 1, 2, 30.4))
sketch8.addConstraint(Sketcher.Constraint("DistanceY", -1, 1, 0, 2, 5.0))
pad4 = body.newObject("PartDesign::Pad", "Pad003")
pad4.Profile = sketch8
pad4.Length = 160
pad4.Reversed = True

sketch9 = body.newObject("Sketcher::SketchObject", "Sketch008")
sketch9.AttachmentSupport = (doc.getObject("XZ_Plane"), [""])
sketch9.MapMode = "FlatFace"
sketch9.addGeometry(Part.Circle(Vector(-12.7, 0, 0), Vector(0, 0, 1), 2.6), False)
sketch9.addGeometry(Part.Circle(Vector(-12.7, -67.3, 0), Vector(0, 0, 1), 2.6), False)
sketch9.addGeometry(Part.Circle(Vector(-12.7, 67.3, 0), Vector(0, 0, 1), 2.6), False)
sketch9.addConstraint(Sketcher.Constraint("Equal", 0, 1))
sketch9.addConstraint(Sketcher.Constraint("Equal", 1, 2))
sketch9.addConstraint(Sketcher.Constraint("Symmetric", 1, 3, 2, 3, -1))
sketch9.addConstraint(Sketcher.Constraint("PointOnObject", 0, 3, -1))
sketch9.addConstraint(Sketcher.Constraint("Vertical", 0, 3, 1, 3))
sketch9.addConstraint(Sketcher.Constraint("Diameter", 0, 5.1054))
sketch9.addConstraint(Sketcher.Constraint("DistanceX", 0, 3, -1, 1, 12.7))
sketch9.addConstraint(Sketcher.Constraint("DistanceY", 1, 3, -1, 1, 67.3))
doc.recompute()
hole3 = body.newObject("PartDesign::Hole", "Hole002")
hole3.Profile = sketch9
hole3.ThreadType = "None"
hole3.Diameter = 5.1054
hole3.DepthType = "ThroughAll"

doc.recompute()
